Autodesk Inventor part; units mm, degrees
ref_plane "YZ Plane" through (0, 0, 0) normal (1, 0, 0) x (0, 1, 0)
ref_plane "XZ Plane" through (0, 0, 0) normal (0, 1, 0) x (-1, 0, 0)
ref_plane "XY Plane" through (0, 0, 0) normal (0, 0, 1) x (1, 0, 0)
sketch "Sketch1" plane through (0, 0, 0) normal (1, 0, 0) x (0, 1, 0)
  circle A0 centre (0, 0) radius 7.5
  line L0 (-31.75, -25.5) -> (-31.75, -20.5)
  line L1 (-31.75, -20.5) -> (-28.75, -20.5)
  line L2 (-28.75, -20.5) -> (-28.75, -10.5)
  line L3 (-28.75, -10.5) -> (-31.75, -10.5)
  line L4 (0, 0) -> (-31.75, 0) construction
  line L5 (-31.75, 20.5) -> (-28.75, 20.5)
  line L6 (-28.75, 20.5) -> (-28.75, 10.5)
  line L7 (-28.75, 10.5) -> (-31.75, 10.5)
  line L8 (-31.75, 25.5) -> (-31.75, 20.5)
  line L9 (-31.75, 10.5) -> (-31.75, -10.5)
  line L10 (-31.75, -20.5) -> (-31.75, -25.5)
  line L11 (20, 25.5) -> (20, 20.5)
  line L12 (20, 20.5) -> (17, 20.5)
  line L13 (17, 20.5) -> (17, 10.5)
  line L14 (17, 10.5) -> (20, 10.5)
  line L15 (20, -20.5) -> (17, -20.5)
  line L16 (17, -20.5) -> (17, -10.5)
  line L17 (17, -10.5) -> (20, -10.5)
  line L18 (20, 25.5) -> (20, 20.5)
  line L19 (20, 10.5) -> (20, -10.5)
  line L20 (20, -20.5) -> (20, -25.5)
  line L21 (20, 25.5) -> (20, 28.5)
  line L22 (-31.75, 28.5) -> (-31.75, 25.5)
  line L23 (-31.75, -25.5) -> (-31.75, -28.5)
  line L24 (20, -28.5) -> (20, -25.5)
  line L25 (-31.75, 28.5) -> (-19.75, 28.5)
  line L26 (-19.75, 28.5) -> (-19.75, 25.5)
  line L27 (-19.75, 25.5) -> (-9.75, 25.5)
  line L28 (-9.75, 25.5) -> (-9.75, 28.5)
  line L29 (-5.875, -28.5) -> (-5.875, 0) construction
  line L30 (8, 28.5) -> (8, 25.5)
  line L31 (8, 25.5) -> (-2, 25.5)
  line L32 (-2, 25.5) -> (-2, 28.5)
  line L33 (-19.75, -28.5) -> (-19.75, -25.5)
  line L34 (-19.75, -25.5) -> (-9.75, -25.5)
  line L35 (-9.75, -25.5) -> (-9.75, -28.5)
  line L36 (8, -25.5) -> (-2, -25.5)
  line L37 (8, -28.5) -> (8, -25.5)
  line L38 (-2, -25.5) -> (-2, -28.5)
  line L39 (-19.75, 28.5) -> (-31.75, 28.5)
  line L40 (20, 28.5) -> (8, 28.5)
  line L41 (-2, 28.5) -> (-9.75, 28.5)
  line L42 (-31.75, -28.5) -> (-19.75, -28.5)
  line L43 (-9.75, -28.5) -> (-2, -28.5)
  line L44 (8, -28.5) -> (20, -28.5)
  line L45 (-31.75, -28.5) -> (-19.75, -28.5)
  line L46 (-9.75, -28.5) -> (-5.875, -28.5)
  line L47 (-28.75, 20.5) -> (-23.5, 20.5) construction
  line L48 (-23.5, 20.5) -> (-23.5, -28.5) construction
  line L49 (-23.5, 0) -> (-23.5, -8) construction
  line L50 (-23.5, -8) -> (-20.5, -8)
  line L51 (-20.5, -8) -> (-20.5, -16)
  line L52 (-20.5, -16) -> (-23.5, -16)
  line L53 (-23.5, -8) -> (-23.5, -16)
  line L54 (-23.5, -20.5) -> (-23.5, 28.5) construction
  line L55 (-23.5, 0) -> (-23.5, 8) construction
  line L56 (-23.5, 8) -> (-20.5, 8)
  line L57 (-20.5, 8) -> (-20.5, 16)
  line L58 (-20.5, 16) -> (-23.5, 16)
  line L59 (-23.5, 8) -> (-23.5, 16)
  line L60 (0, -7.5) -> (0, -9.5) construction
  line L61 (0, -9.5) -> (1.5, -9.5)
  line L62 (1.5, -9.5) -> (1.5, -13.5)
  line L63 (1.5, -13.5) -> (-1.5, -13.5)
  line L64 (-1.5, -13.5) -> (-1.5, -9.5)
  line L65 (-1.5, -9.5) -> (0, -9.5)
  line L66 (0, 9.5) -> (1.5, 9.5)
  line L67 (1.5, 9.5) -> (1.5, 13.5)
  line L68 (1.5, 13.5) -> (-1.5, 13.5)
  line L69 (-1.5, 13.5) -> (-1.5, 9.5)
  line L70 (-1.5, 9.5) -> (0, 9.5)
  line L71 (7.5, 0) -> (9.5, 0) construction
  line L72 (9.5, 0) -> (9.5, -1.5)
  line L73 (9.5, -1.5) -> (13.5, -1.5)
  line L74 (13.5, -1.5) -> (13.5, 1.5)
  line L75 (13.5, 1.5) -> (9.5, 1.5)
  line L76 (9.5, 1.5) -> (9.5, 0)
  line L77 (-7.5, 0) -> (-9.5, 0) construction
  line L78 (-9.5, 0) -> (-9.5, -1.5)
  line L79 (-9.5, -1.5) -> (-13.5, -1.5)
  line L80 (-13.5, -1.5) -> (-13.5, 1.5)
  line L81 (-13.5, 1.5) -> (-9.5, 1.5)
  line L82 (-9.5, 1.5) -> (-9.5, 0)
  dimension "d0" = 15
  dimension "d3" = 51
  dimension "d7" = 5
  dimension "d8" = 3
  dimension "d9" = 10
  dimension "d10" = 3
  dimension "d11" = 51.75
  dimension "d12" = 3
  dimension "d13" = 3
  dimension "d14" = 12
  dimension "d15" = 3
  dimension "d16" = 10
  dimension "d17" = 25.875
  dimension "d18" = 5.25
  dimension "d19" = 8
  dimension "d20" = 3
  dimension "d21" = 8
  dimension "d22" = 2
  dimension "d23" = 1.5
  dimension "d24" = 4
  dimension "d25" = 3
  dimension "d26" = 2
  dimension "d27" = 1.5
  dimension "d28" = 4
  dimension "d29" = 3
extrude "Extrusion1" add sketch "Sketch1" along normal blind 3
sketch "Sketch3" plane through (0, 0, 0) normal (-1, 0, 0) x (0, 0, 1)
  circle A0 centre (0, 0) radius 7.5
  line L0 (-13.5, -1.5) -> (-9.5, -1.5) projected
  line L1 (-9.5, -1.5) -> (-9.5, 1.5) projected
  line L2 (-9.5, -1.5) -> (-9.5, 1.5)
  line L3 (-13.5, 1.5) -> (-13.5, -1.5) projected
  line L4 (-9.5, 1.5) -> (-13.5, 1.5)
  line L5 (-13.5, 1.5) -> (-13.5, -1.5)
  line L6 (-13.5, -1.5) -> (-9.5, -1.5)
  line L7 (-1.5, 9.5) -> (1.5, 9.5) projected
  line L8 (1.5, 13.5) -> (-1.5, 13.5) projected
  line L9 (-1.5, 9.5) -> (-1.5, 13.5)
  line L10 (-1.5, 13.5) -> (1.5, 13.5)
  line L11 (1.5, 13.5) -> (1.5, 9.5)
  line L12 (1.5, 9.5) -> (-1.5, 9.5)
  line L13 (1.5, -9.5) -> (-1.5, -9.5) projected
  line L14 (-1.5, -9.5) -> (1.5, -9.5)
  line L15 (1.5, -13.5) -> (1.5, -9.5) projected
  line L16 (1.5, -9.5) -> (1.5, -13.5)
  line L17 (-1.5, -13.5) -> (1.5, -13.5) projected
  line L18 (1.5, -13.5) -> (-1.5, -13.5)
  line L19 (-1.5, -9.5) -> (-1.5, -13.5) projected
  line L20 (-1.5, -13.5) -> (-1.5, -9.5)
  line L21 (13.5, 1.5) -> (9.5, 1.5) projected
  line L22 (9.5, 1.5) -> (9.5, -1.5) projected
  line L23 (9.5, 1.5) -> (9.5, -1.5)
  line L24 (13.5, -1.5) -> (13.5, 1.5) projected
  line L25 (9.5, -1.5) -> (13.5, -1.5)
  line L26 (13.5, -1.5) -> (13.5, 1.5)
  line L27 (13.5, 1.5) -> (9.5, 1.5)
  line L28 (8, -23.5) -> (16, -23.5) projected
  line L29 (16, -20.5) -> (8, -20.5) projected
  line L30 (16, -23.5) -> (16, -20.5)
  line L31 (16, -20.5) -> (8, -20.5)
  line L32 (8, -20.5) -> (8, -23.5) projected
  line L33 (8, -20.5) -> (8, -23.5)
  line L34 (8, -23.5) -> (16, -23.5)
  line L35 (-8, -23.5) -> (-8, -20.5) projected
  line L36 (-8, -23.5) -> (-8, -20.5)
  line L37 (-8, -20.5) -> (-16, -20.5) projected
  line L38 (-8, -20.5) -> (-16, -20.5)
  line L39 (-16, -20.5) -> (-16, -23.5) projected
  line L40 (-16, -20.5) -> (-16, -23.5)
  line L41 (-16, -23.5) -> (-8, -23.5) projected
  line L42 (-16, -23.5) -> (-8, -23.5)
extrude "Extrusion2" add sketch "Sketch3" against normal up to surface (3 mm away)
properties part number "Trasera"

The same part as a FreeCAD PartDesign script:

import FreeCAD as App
import Part
import Sketcher
Q = App.Units.Quantity

doc = App.newDocument("Part")
body = doc.addObject("PartDesign::Body", "Body")

# Sketch on YZ plane
sketch1 = body.newObject("Sketcher::SketchObject", "Sketch")
sketch1.AttachmentSupport = (doc.getObject("YZ_Plane"), [""])
sketch1.MapMode = "FlatFace"
sketch1.addGeometry(Part.LineSegment(App.Vector(-31.75, -20.5, 0), App.Vector(-31.75, -28.5, 0)), False)
sketch1.addGeometry(Part.LineSegment(App.Vector(-31.75, -28.5, 0), App.Vector(-19.75, -28.5, 0)), False)
sketch1.addGeometry(Part.LineSegment(App.Vector(-19.75, -28.5, 0), App.Vector(-19.75, -25.5, 0)), False)
sketch1.addGeometry(Part.LineSegment(App.Vector(-19.75, -25.5, 0), App.Vector(-9.75, -25.5, 0)), False)
sketch1.addGeometry(Part.LineSegment(App.Vector(-9.75, -25.5, 0), App.Vector(-9.75, -28.5, 0)), False)
sketch1.addGeometry(Part.LineSegment(App.Vector(-9.75, -28.5, 0), App.Vector(-2, -28.5, 0)), False)
sketch1.addGeometry(Part.LineSegment(App.Vector(-2, -28.5, 0), App.Vector(-2, -25.5, 0)), False)
sketch1.addGeometry(Part.LineSegment(App.Vector(-2, -25.5, 0), App.Vector(8, -25.5, 0)), False)
sketch1.addGeometry(Part.LineSegment(App.Vector(8, -25.5, 0), App.Vector(8, -28.5, 0)), False)
sketch1.addGeometry(Part.LineSegment(App.Vector(8, -28.5, 0), App.Vector(20, -28.5, 0)), False)
sketch1.addGeometry(Part.LineSegment(App.Vector(20, -28.5, 0), App.Vector(20, -20.5, 0)), False)
sketch1.addGeometry(Part.LineSegment(App.Vector(20, -20.5, 0), App.Vector(17, -20.5, 0)), False)
sketch1.addGeometry(Part.LineSegment(App.Vector(17, -20.5, 0), App.Vector(17, -10.5, 0)), False)
sketch1.addGeometry(Part.LineSegment(App.Vector(17, -10.5, 0), App.Vector(20, -10.5, 0)), False)
sketch1.addGeometry(Part.LineSegment(App.Vector(20, -10.5, 0), App.Vector(20, 10.5, 0)), False)
sketch1.addGeometry(Part.LineSegment(App.Vector(20, 10.5, 0), App.Vector(17, 10.5, 0)), False)
sketch1.addGeometry(Part.LineSegment(App.Vector(17, 10.5, 0), App.Vector(17, 20.5, 0)), False)
sketch1.addGeometry(Part.LineSegment(App.Vector(17, 20.5, 0), App.Vector(20, 20.5, 0)), False)
sketch1.addGeometry(Part.LineSegment(App.Vector(20, 20.5, 0), App.Vector(20, 28.5, 0)), False)
sketch1.addGeometry(Part.LineSegment(App.Vector(20, 28.5, 0), App.Vector(8, 28.5, 0)), False)
sketch1.addGeometry(Part.LineSegment(App.Vector(8, 28.5, 0), App.Vector(8, 25.5, 0)), False)
sketch1.addGeometry(Part.LineSegment(App.Vector(8, 25.5, 0), App.Vector(-2, 25.5, 0)), False)
sketch1.addGeometry(Part.LineSegment(App.Vector(-2, 25.5, 0), App.Vector(-2, 28.5, 0)), False)
sketch1.addGeometry(Part.LineSegment(App.Vector(-2, 28.5, 0), App.Vector(-9.75, 28.5, 0)), False)
sketch1.addGeometry(Part.LineSegment(App.Vector(-9.75, 28.5, 0), App.Vector(-9.75, 25.5, 0)), False)
sketch1.addGeometry(Part.LineSegment(App.Vector(-9.75, 25.5, 0), App.Vector(-19.75, 25.5, 0)), False)
sketch1.addGeometry(Part.LineSegment(App.Vector(-19.75, 25.5, 0), App.Vector(-19.75, 28.5, 0)), False)
sketch1.addGeometry(Part.LineSegment(App.Vector(-19.75, 28.5, 0), App.Vector(-31.75, 28.5, 0)), False)
sketch1.addGeometry(Part.LineSegment(App.Vector(-31.75, 28.5, 0), App.Vector(-31.75, 20.5, 0)), False)
sketch1.addGeometry(Part.LineSegment(App.Vector(-31.75, 20.5, 0), App.Vector(-28.75, 20.5, 0)), False)
sketch1.addGeometry(Part.LineSegment(App.Vector(-28.75, 20.5, 0), App.Vector(-28.75, 10.5, 0)), False)
sketch1.addGeometry(Part.LineSegment(App.Vector(-28.75, 10.5, 0), App.Vector(-31.75, 10.5, 0)), False)
sketch1.addGeometry(Part.LineSegment(App.Vector(-31.75, 10.5, 0), App.Vector(-31.75, -10.5, 0)), False)
sketch1.addGeometry(Part.LineSegment(App.Vector(-31.75, -10.5, 0), App.Vector(-28.75, -10.5, 0)), False)
sketch1.addGeometry(Part.LineSegment(App.Vector(-28.75, -10.5, 0), App.Vector(-28.75, -20.5, 0)), False)
sketch1.addGeometry(Part.LineSegment(App.Vector(-28.75, -20.5, 0), App.Vector(-31.75, -20.5, 0)), False)
sketch1.addGeometry(Part.LineSegment(App.Vector(-23.5, -16, 0), App.Vector(-23.5, -8, 0)), False)
sketch1.addGeometry(Part.LineSegment(App.Vector(-23.5, -8, 0), App.Vector(-20.5, -8, 0)), False)
sketch1.addGeometry(Part.LineSegment(App.Vector(-20.5, -8, 0), App.Vector(-20.5, -16, 0)), False)
sketch1.addGeometry(Part.LineSegment(App.Vector(-20.5, -16, 0), App.Vector(-23.5, -16, 0)), False)
sketch1.addGeometry(Part.LineSegment(App.Vector(-1.5, -9.5, 0), App.Vector(1.5, -9.5, 0)), False)
sketch1.addGeometry(Part.LineSegment(App.Vector(1.5, -9.5, 0), App.Vector(1.5, -13.5, 0)), False)
sketch1.addGeometry(Part.LineSegment(App.Vector(1.5, -13.5, 0), App.Vector(-1.5, -13.5, 0)), False)
sketch1.addGeometry(Part.LineSegment(App.Vector(-1.5, -13.5, 0), App.Vector(-1.5, -9.5, 0)), False)
sketch1.addGeometry(Part.LineSegment(App.Vector(-20.5, 8, 0), App.Vector(-23.5, 8, 0)), False)
sketch1.addGeometry(Part.LineSegment(App.Vector(-23.5, 8, 0), App.Vector(-23.5, 16, 0)), False)
sketch1.addGeometry(Part.LineSegment(App.Vector(-23.5, 16, 0), App.Vector(-20.5, 16, 0)), False)
sketch1.addGeometry(Part.LineSegment(App.Vector(-20.5, 16, 0), App.Vector(-20.5, 8, 0)), False)
sketch1.addGeometry(Part.LineSegment(App.Vector(-9.5, 1.5, 0), App.Vector(-9.5, -1.5, 0)), False)
sketch1.addGeometry(Part.LineSegment(App.Vector(-9.5, -1.5, 0), App.Vector(-13.5, -1.5, 0)), False)
sketch1.addGeometry(Part.LineSegment(App.Vector(-13.5, -1.5, 0), App.Vector(-13.5, 1.5, 0)), False)
sketch1.addGeometry(Part.LineSegment(App.Vector(-13.5, 1.5, 0), App.Vector(-9.5, 1.5, 0)), False)
sketch1.addGeometry(Part.Circle(App.Vector(0, 0, 0), App.Vector(0, 0, 1), 7.5), False)
sketch1.addGeometry(Part.LineSegment(App.Vector(1.5, 9.5, 0), App.Vector(-1.5, 9.5, 0)), False)
sketch1.addGeometry(Part.LineSegment(App.Vector(-1.5, 9.5, 0), App.Vector(-1.5, 13.5, 0)), False)
sketch1.addGeometry(Part.LineSegment(App.Vector(-1.5, 13.5, 0), App.Vector(1.5, 13.5, 0)), False)
sketch1.addGeometry(Part.LineSegment(App.Vector(1.5, 13.5, 0), App.Vector(1.5, 9.5, 0)), False)
sketch1.addGeometry(Part.LineSegment(App.Vector(9.5, -1.5, 0), App.Vector(9.5, 1.5, 0)), False)
sketch1.addGeometry(Part.LineSegment(App.Vector(9.5, 1.5, 0), App.Vector(13.5, 1.5, 0)), False)
sketch1.addGeometry(Part.LineSegment(App.Vector(13.5, 1.5, 0), App.Vector(13.5, -1.5, 0)), False)
sketch1.addGeometry(Part.LineSegment(App.Vector(13.5, -1.5, 0), App.Vector(9.5, -1.5, 0)), False)
sketch1.addConstraint(Sketcher.Constraint("Coincident", 0, 2, 1, 1))
sketch1.addConstraint(Sketcher.Constraint("Coincident", 1, 2, 2, 1))
sketch1.addConstraint(Sketcher.Constraint("Coincident", 2, 2, 3, 1))
sketch1.addConstraint(Sketcher.Constraint("Coincident", 3, 2, 4, 1))
sketch1.addConstraint(Sketcher.Constraint("Coincident", 4, 2, 5, 1))
sketch1.addConstraint(Sketcher.Constraint("Coincident", 5, 2, 6, 1))
sketch1.addConstraint(Sketcher.Constraint("Coincident", 6, 2, 7, 1))
sketch1.addConstraint(Sketcher.Constraint("Coincident", 7, 2, 8, 1))
sketch1.addConstraint(Sketcher.Constraint("Coincident", 8, 2, 9, 1))
sketch1.addConstraint(Sketcher.Constraint("Coincident", 9, 2, 10, 1))
sketch1.addConstraint(Sketcher.Constraint("Coincident", 10, 2, 11, 1))
sketch1.addConstraint(Sketcher.Constraint("Coincident", 11, 2, 12, 1))
sketch1.addConstraint(Sketcher.Constraint("Coincident", 12, 2, 13, 1))
sketch1.addConstraint(Sketcher.Constraint("Coincident", 13, 2, 14, 1))
sketch1.addConstraint(Sketcher.Constraint("Coincident", 14, 2, 15, 1))
sketch1.addConstraint(Sketcher.Constraint("Coincident", 15, 2, 16, 1))
sketch1.addConstraint(Sketcher.Constraint("Coincident", 16, 2, 17, 1))
sketch1.addConstraint(Sketcher.Constraint("Coincident", 17, 2, 18, 1))
sketch1.addConstraint(Sketcher.Constraint("Coincident", 18, 2, 19, 1))
sketch1.addConstraint(Sketcher.Constraint("Coincident", 19, 2, 20, 1))
sketch1.addConstraint(Sketcher.Constraint("Coincident", 20, 2, 21, 1))
sketch1.addConstraint(Sketcher.Constraint("Coincident", 21, 2, 22, 1))
sketch1.addConstraint(Sketcher.Constraint("Coincident", 22, 2, 23, 1))
sketch1.addConstraint(Sketcher.Constraint("Coincident", 23, 2, 24, 1))
sketch1.addConstraint(Sketcher.Constraint("Coincident", 24, 2, 25, 1))
sketch1.addConstraint(Sketcher.Constraint("Coincident", 25, 2, 26, 1))
sketch1.addConstraint(Sketcher.Constraint("Coincident", 26, 2, 27, 1))
sketch1.addConstraint(Sketcher.Constraint("Coincident", 27, 2, 28, 1))
sketch1.addConstraint(Sketcher.Constraint("Coincident", 28, 2, 29, 1))
sketch1.addConstraint(Sketcher.Constraint("Coincident", 29, 2, 30, 1))
sketch1.addConstraint(Sketcher.Constraint("Coincident", 30, 2, 31, 1))
sketch1.addConstraint(Sketcher.Constraint("Coincident", 31, 2, 32, 1))
sketch1.addConstraint(Sketcher.Constraint("Coincident", 32, 2, 33, 1))
sketch1.addConstraint(Sketcher.Constraint("Coincident", 33, 2, 34, 1))
sketch1.addConstraint(Sketcher.Constraint("Coincident", 34, 2, 35, 1))
sketch1.addConstraint(Sketcher.Constraint("Coincident", 35, 2, 0, 1))
sketch1.addConstraint(Sketcher.Constraint("Coincident", 36, 2, 37, 1))
sketch1.addConstraint(Sketcher.Constraint("Coincident", 37, 2, 38, 1))
sketch1.addConstraint(Sketcher.Constraint("Coincident", 38, 2, 39, 1))
sketch1.addConstraint(Sketcher.Constraint("Coincident", 39, 2, 36, 1))
sketch1.addConstraint(Sketcher.Constraint("Coincident", 40, 2, 41, 1))
sketch1.addConstraint(Sketcher.Constraint("Coincident", 41, 2, 42, 1))
sketch1.addConstraint(Sketcher.Constraint("Coincident", 42, 2, 43, 1))
sketch1.addConstraint(Sketcher.Constraint("Coincident", 43, 2, 40, 1))
sketch1.addConstraint(Sketcher.Constraint("Coincident", 44, 2, 45, 1))
sketch1.addConstraint(Sketcher.Constraint("Coincident", 45, 2, 46, 1))
sketch1.addConstraint(Sketcher.Constraint("Coincident", 46, 2, 47, 1))
sketch1.addConstraint(Sketcher.Constraint("Coincident", 47, 2, 44, 1))
sketch1.addConstraint(Sketcher.Constraint("Coincident", 48, 2, 49, 1))
sketch1.addConstraint(Sketcher.Constraint("Coincident", 49, 2, 50, 1))
sketch1.addConstraint(Sketcher.Constraint("Coincident", 50, 2, 51, 1))
sketch1.addConstraint(Sketcher.Constraint("Coincident", 51, 2, 48, 1))
sketch1.addConstraint(Sketcher.Constraint("Coincident", 53, 2, 54, 1))
sketch1.addConstraint(Sketcher.Constraint("Coincident", 54, 2, 55, 1))
sketch1.addConstraint(Sketcher.Constraint("Coincident", 55, 2, 56, 1))
sketch1.addConstraint(Sketcher.Constraint("Coincident", 56, 2, 53, 1))
sketch1.addConstraint(Sketcher.Constraint("Coincident", 57, 2, 58, 1))
sketch1.addConstraint(Sketcher.Constraint("Coincident", 58, 2, 59, 1))
sketch1.addConstraint(Sketcher.Constraint("Coincident", 59, 2, 60, 1))
sketch1.addConstraint(Sketcher.Constraint("Coincident", 60, 2, 57, 1))
sketch1.addConstraint(Sketcher.Constraint("Vertical", 0))
sketch1.addConstraint(Sketcher.Constraint("Horizontal", 1))
sketch1.addConstraint(Sketcher.Constraint("Vertical", 2))
sketch1.addConstraint(Sketcher.Constraint("Horizontal", 3))
sketch1.addConstraint(Sketcher.Constraint("Vertical", 4))
sketch1.addConstraint(Sketcher.Constraint("Horizontal", 5))
sketch1.addConstraint(Sketcher.Constraint("Vertical", 6))
sketch1.addConstraint(Sketcher.Constraint("Horizontal", 7))
sketch1.addConstraint(Sketcher.Constraint("Vertical", 8))
sketch1.addConstraint(Sketcher.Constraint("Horizontal", 9))
sketch1.addConstraint(Sketcher.Constraint("Vertical", 10))
sketch1.addConstraint(Sketcher.Constraint("Horizontal", 11))
sketch1.addConstraint(Sketcher.Constraint("Vertical", 12))
sketch1.addConstraint(Sketcher.Constraint("Horizontal", 13))
sketch1.addConstraint(Sketcher.Constraint("Vertical", 14))
sketch1.addConstraint(Sketcher.Constraint("Horizontal", 15))
sketch1.addConstraint(Sketcher.Constraint("Vertical", 16))
sketch1.addConstraint(Sketcher.Constraint("Horizontal", 17))
sketch1.addConstraint(Sketcher.Constraint("Vertical", 18))
sketch1.addConstraint(Sketcher.Constraint("Horizontal", 19))
sketch1.addConstraint(Sketcher.Constraint("Vertical", 20))
sketch1.addConstraint(Sketcher.Constraint("Horizontal", 21))
sketch1.addConstraint(Sketcher.Constraint("Vertical", 22))
sketch1.addConstraint(Sketcher.Constraint("Horizontal", 23))
sketch1.addConstraint(Sketcher.Constraint("Vertical", 24))
sketch1.addConstraint(Sketcher.Constraint("Horizontal", 25))
sketch1.addConstraint(Sketcher.Constraint("Vertical", 26))
sketch1.addConstraint(Sketcher.Constraint("Horizontal", 27))
sketch1.addConstraint(Sketcher.Constraint("Vertical", 28))
sketch1.addConstraint(Sketcher.Constraint("Horizontal", 29))
sketch1.addConstraint(Sketcher.Constraint("Vertical", 30))
sketch1.addConstraint(Sketcher.Constraint("Horizontal", 31))
sketch1.addConstraint(Sketcher.Constraint("Vertical", 32))
sketch1.addConstraint(Sketcher.Constraint("Horizontal", 33))
sketch1.addConstraint(Sketcher.Constraint("Vertical", 34))
sketch1.addConstraint(Sketcher.Constraint("Horizontal", 35))
sketch1.addConstraint(Sketcher.Constraint("Vertical", 36))
sketch1.addConstraint(Sketcher.Constraint("Horizontal", 37))
sketch1.addConstraint(Sketcher.Constraint("Vertical", 38))
sketch1.addConstraint(Sketcher.Constraint("Horizontal", 39))
sketch1.addConstraint(Sketcher.Constraint("Horizontal", 40))
sketch1.addConstraint(Sketcher.Constraint("Vertical", 41))
sketch1.addConstraint(Sketcher.Constraint("Horizontal", 42))
sketch1.addConstraint(Sketcher.Constraint("Vertical", 43))
sketch1.addConstraint(Sketcher.Constraint("Horizontal", 44))
sketch1.addConstraint(Sketcher.Constraint("Vertical", 45))
sketch1.addConstraint(Sketcher.Constraint("Horizontal", 46))
sketch1.addConstraint(Sketcher.Constraint("Vertical", 47))
sketch1.addConstraint(Sketcher.Constraint("Vertical", 48))
sketch1.addConstraint(Sketcher.Constraint("Horizontal", 49))
sketch1.addConstraint(Sketcher.Constraint("Vertical", 50))
sketch1.addConstraint(Sketcher.Constraint("Horizontal", 51))
sketch1.addConstraint(Sketcher.Constraint("Horizontal", 53))
sketch1.addConstraint(Sketcher.Constraint("Vertical", 54))
sketch1.addConstraint(Sketcher.Constraint("Horizontal", 55))
sketch1.addConstraint(Sketcher.Constraint("Vertical", 56))
sketch1.addConstraint(Sketcher.Constraint("Vertical", 57))
sketch1.addConstraint(Sketcher.Constraint("Horizontal", 58))
sketch1.addConstraint(Sketcher.Constraint("Vertical", 59))
sketch1.addConstraint(Sketcher.Constraint("Horizontal", 60))
sketch1.addConstraint(Sketcher.Constraint("Coincident", 52, 3, -1, 1))
sketch1.addConstraint(Sketcher.Constraint("Symmetric", 40, 2, 53, 2, -1, 1))
sketch1.addConstraint(Sketcher.Constraint("Symmetric", 42, 2, 55, 2, -1, 1))
sketch1.addConstraint(Sketcher.Constraint("Symmetric", 48, 2, 57, 2, -1, 1))
sketch1.addConstraint(Sketcher.Constraint("Symmetric", 50, 2, 59, 2, -1, 1))
sketch1.addConstraint(Sketcher.Constraint("Symmetric", 12, 2, 15, 2, -1))
sketch1.addConstraint(Sketcher.Constraint("Symmetric", 10, 2, 17, 2, -1))
sketch1.addConstraint(Sketcher.Constraint("Symmetric", 8, 2, 19, 2, -1))
sketch1.addConstraint(Sketcher.Constraint("Symmetric", 6, 2, 21, 2, -1))
sketch1.addConstraint(Sketcher.Constraint("Symmetric", 4, 2, 23, 2, -1))
sketch1.addConstraint(Sketcher.Constraint("Symmetric", 2, 2, 25, 2, -1))
sketch1.addConstraint(Sketcher.Constraint("Symmetric", 0, 2, 27, 2, -1))
sketch1.addConstraint(Sketcher.Constraint("Symmetric", 30, 2, 33, 2, -1))
sketch1.addConstraint(Sketcher.Constraint("Symmetric", 36, 2, 44, 2, -1))
sketch1.addConstraint(Sketcher.Constraint("Symmetric", 38, 2, 46, 2, -1))
sketch1.addConstraint(Sketcher.Constraint("Horizontal", 1, 2, 4, 2))
sketch1.addConstraint(Sketcher.Constraint("Horizontal", 3, 2, 6, 2))
sketch1.addConstraint(Sketcher.Constraint("Horizontal", 5, 2, 8, 2))
sketch1.addConstraint(Sketcher.Constraint("Horizontal", 17, 2, 28, 2))
sketch1.addConstraint(Sketcher.Constraint("Horizontal", 15, 2, 30, 2))
sketch1.addConstraint(Sketcher.Constraint("Horizontal", 11, 2, 34, 2))
sketch1.addConstraint(Sketcher.Constraint("Horizontal", 51, 2, 57, 2))
sketch1.addConstraint(Sketcher.Constraint("Vertical", 10, 2, 13, 2))
sketch1.addConstraint(Sketcher.Constraint("Vertical", 28, 2, 31, 2))
sketch1.addConstraint(Sketcher.Constraint("Vertical", 43, 2, 53, 2))
sketch1.addConstraint(Sketcher.Constraint("Equal", 3, 7))
sketch1.addConstraint(Sketcher.Constraint("Equal", 1, 9))
sketch1.addConstraint(Sketcher.Constraint("Equal", 17, 29))
sketch1.addConstraint(Sketcher.Constraint("Equal", 35, 37))
sketch1.addConstraint(Sketcher.Constraint("Equal", 39, 40))
sketch1.addConstraint(Sketcher.Constraint("Equal", 55, 2))
sketch1.addConstraint(Sketcher.Constraint("Equal", 25, 12))
sketch1.addConstraint(Sketcher.Constraint("Equal", 28, 36))
sketch1.addConstraint(Sketcher.Constraint("Equal", 60, 41))
sketch1.addConstraint(Sketcher.Constraint("Equal", 26, 48))
sketch1.addConstraint(Sketcher.Constraint("Diameter", 52, Q("15 mm")))
sketch1.addConstraint(Sketcher.Constraint("DistanceX", 1, 1, 1, 2, Q("12 mm")))
sketch1.addConstraint(Sketcher.Constraint("DistanceX", 3, 1, 3, 2, Q("10 mm")))
sketch1.addConstraint(Sketcher.Constraint("DistanceX", 11, 2, 11, 1, Q("3 mm")))
sketch1.addConstraint(Sketcher.Constraint("DistanceX", 49, 2, 49, 1, Q("4 mm")))
sketch1.addConstraint(Sketcher.Constraint("DistanceY", 0, 2, 0, 1, Q("8 mm")))
sketch1.addConstraint(Sketcher.Constraint("DistanceX", 5, 2, -1, 1, Q("2 mm")))
sketch1.addConstraint(Sketcher.Constraint("DistanceY", 36, 2, -1, 1, Q("8 mm")))
sketch1.addConstraint(Sketcher.Constraint("DistanceY", 14, 1, 14, 2, Q("21 mm")))
sketch1.addConstraint(Sketcher.Constraint("DistanceX", 5, 1, 5, 2, Q("7.75 mm")))
sketch1.addConstraint(Sketcher.Constraint("DistanceX", 36, 2, -1, 1, Q("23.5 mm")))
sketch1.addConstraint(Sketcher.Constraint("DistanceY", 40, 2, -1, 1, Q("9.5 mm")))
sketch1.addConstraint(Sketcher.Constraint("DistanceX", 48, 2, -1, 1, Q("9.5 mm")))
pad1 = body.newObject("PartDesign::Pad", "Pad")
pad1.Profile = sketch1
pad1.Length = 3

# Sketch on YZ plane
sketch2 = body.newObject("Sketcher::SketchObject", "Sketch001")
sketch2.AttachmentSupport = (doc.getObject("YZ_Plane"), [""])
sketch2.MapMode = "FlatFace"
sketch2.addGeometry(Part.Circle(App.Vector(0, 0, 0), App.Vector(0, 0, 1), 7.5), False)
sketch2.addGeometry(Part.LineSegment(App.Vector(1.5, -13.5, 0), App.Vector(-1.5, -13.5, 0)), False)
sketch2.addGeometry(Part.LineSegment(App.Vector(-1.5, -13.5, 0), App.Vector(-1.5, -9.5, 0)), False)
sketch2.addGeometry(Part.LineSegment(App.Vector(-1.5, -9.5, 0), App.Vector(1.5, -9.5, 0)), False)
sketch2.addGeometry(Part.LineSegment(App.Vector(1.5, -9.5, 0), App.Vector(1.5, -13.5, 0)), False)
sketch2.addGeometry(Part.LineSegment(App.Vector(13.5, -1.5, 0), App.Vector(9.5, -1.5, 0)), False)
sketch2.addGeometry(Part.LineSegment(App.Vector(9.5, -1.5, 0), App.Vector(9.5, 1.5, 0)), False)
sketch2.addGeometry(Part.LineSegment(App.Vector(9.5, 1.5, 0), App.Vector(13.5, 1.5, 0)), False)
sketch2.addGeometry(Part.LineSegment(App.Vector(13.5, 1.5, 0), App.Vector(13.5, -1.5, 0)), False)
sketch2.addGeometry(Part.LineSegment(App.Vector(-13.5, 1.5, 0), App.Vector(-9.5, 1.5, 0)), False)
sketch2.addGeometry(Part.LineSegment(App.Vector(-9.5, 1.5, 0), App.Vector(-9.5, -1.5, 0)), False)
sketch2.addGeometry(Part.LineSegment(App.Vector(-9.5, -1.5, 0), App.Vector(-13.5, -1.5, 0)), False)
sketch2.addGeometry(Part.LineSegment(App.Vector(-13.5, -1.5, 0), App.Vector(-13.5, 1.5, 0)), False)
sketch2.addGeometry(Part.LineSegment(App.Vector(-1.5, 13.5, 0), App.Vector(1.5, 13.5, 0)), False)
sketch2.addGeometry(Part.LineSegment(App.Vector(1.5, 13.5, 0), App.Vector(1.5, 9.5, 0)), False)
sketch2.addGeometry(Part.LineSegment(App.Vector(1.5, 9.5, 0), App.Vector(-1.5, 9.5, 0)), False)
sketch2.addGeometry(Part.LineSegment(App.Vector(-1.5, 9.5, 0), App.Vector(-1.5, 13.5, 0)), False)
sketch2.addGeometry(Part.LineSegment(App.Vector(-20.5, 8, 0), App.Vector(-23.5, 8, 0)), False)
sketch2.addGeometry(Part.LineSegment(App.Vector(-23.5, 8, 0), App.Vector(-23.5, 16, 0)), False)
sketch2.addGeometry(Part.LineSegment(App.Vector(-23.5, 16, 0), App.Vector(-20.5, 16, 0)), False)
sketch2.addGeometry(Part.LineSegment(App.Vector(-20.5, 16, 0), App.Vector(-20.5, 8, 0)), False)
sketch2.addGeometry(Part.LineSegment(App.Vector(-23.5, -16, 0), App.Vector(-23.5, -8, 0)), False)
sketch2.addGeometry(Part.LineSegment(App.Vector(-23.5, -8, 0), App.Vector(-20.5, -8, 0)), False)
sketch2.addGeometry(Part.LineSegment(App.Vector(-20.5, -8, 0), App.Vector(-20.5, -16, 0)), False)
sketch2.addGeometry(Part.LineSegment(App.Vector(-20.5, -16, 0), App.Vector(-23.5, -16, 0)), False)
sketch2.addConstraint(Sketcher.Constraint("Coincident", 1, 2, 2, 1))
sketch2.addConstraint(Sketcher.Constraint("Coincident", 2, 2, 3, 1))
sketch2.addConstraint(Sketcher.Constraint("Coincident", 3, 2, 4, 1))
sketch2.addConstraint(Sketcher.Constraint("Coincident", 4, 2, 1, 1))
sketch2.addConstraint(Sketcher.Constraint("Coincident", 5, 2, 6, 1))
sketch2.addConstraint(Sketcher.Constraint("Coincident", 6, 2, 7, 1))
sketch2.addConstraint(Sketcher.Constraint("Coincident", 7, 2, 8, 1))
sketch2.addConstraint(Sketcher.Constraint("Coincident", 8, 2, 5, 1))
sketch2.addConstraint(Sketcher.Constraint("Coincident", 9, 2, 10, 1))
sketch2.addConstraint(Sketcher.Constraint("Coincident", 10, 2, 11, 1))
sketch2.addConstraint(Sketcher.Constraint("Coincident", 11, 2, 12, 1))
sketch2.addConstraint(Sketcher.Constraint("Coincident", 12, 2, 9, 1))
sketch2.addConstraint(Sketcher.Constraint("Coincident", 13, 2, 14, 1))
sketch2.addConstraint(Sketcher.Constraint("Coincident", 14, 2, 15, 1))
sketch2.addConstraint(Sketcher.Constraint("Coincident", 15, 2, 16, 1))
sketch2.addConstraint(Sketcher.Constraint("Coincident", 16, 2, 13, 1))
sketch2.addConstraint(Sketcher.Constraint("Coincident", 17, 2, 18, 1))
sketch2.addConstraint(Sketcher.Constraint("Coincident", 18, 2, 19, 1))
sketch2.addConstraint(Sketcher.Constraint("Coincident", 19, 2, 20, 1))
sketch2.addConstraint(Sketcher.Constraint("Coincident", 20, 2, 17, 1))
sketch2.addConstraint(Sketcher.Constraint("Coincident", 21, 2, 22, 1))
sketch2.addConstraint(Sketcher.Constraint("Coincident", 22, 2, 23, 1))
sketch2.addConstraint(Sketcher.Constraint("Coincident", 23, 2, 24, 1))
sketch2.addConstraint(Sketcher.Constraint("Coincident", 24, 2, 21, 1))
sketch2.addConstraint(Sketcher.Constraint("Horizontal", 1))
sketch2.addConstraint(Sketcher.Constraint("Vertical", 2))
sketch2.addConstraint(Sketcher.Constraint("Horizontal", 3))
sketch2.addConstraint(Sketcher.Constraint("Vertical", 4))
sketch2.addConstraint(Sketcher.Constraint("Horizontal", 5))
sketch2.addConstraint(Sketcher.Constraint("Vertical", 6))
sketch2.addConstraint(Sketcher.Constraint("Horizontal", 7))
sketch2.addConstraint(Sketcher.Constraint("Vertical", 8))
sketch2.addConstraint(Sketcher.Constraint("Horizontal", 9))
sketch2.addConstraint(Sketcher.Constraint("Vertical", 10))
sketch2.addConstraint(Sketcher.Constraint("Horizontal", 11))
sketch2.addConstraint(Sketcher.Constraint("Vertical", 12))
sketch2.addConstraint(Sketcher.Constraint("Horizontal", 13))
sketch2.addConstraint(Sketcher.Constraint("Vertical", 14))
sketch2.addConstraint(Sketcher.Constraint("Horizontal", 15))
sketch2.addConstraint(Sketcher.Constraint("Vertical", 16))
sketch2.addConstraint(Sketcher.Constraint("Horizontal", 17))
sketch2.addConstraint(Sketcher.Constraint("Vertical", 18))
sketch2.addConstraint(Sketcher.Constraint("Horizontal", 19))
sketch2.addConstraint(Sketcher.Constraint("Vertical", 20))
sketch2.addConstraint(Sketcher.Constraint("Vertical", 21))
sketch2.addConstraint(Sketcher.Constraint("Horizontal", 22))
sketch2.addConstraint(Sketcher.Constraint("Vertical", 23))
sketch2.addConstraint(Sketcher.Constraint("Horizontal", 24))
sketch2.addConstraint(Sketcher.Constraint("Coincident", 0, 3, -1, 1))
sketch2.addConstraint(Sketcher.Constraint("Symmetric", 5, 2, 9, 2, -1, 1))
sketch2.addConstraint(Sketcher.Constraint("Symmetric", 7, 2, 11, 2, -1, 1))
sketch2.addConstraint(Sketcher.Constraint("Symmetric", 1, 2, 13, 2, -1, 1))
sketch2.addConstraint(Sketcher.Constraint("Symmetric", 3, 2, 15, 2, -1, 1))
sketch2.addConstraint(Sketcher.Constraint("Symmetric", 17, 2, 21, 2, -1))
sketch2.addConstraint(Sketcher.Constraint("Symmetric", 19, 2, 23, 2, -1))
sketch2.addConstraint(Sketcher.Constraint("Horizontal", 7, 2, 9, 2))
sketch2.addConstraint(Sketcher.Constraint("Vertical", 4, 2, 13, 2))
sketch2.addConstraint(Sketcher.Constraint("Equal", 15, 17))
sketch2.addConstraint(Sketcher.Constraint("Equal", 11, 2))
sketch2.addConstraint(Sketcher.Constraint("Equal", 24, 6))
sketch2.addConstraint(Sketcher.Constraint("Diameter", 0, Q("15 mm")))
sketch2.addConstraint(Sketcher.Constraint("DistanceX", 1, 2, 1, 1, Q("3 mm")))
sketch2.addConstraint(Sketcher.Constraint("DistanceX", 5, 2, 5, 1, Q("4 mm")))
sketch2.addConstraint(Sketcher.Constraint("DistanceY", 18, 1, 18, 2, Q("8 mm")))
sketch2.addConstraint(Sketcher.Constraint("DistanceY", -1, 1, 17, 2, Q("8 mm")))
sketch2.addConstraint(Sketcher.Constraint("DistanceX", 3, 2, 5, 2, Q("8 mm")))
sketch2.addConstraint(Sketcher.Constraint("DistanceY", 3, 2, 5, 2, Q("8 mm")))
sketch2.addConstraint(Sketcher.Constraint("DistanceX", 17, 2, 12, 2, Q("10 mm")))
pad2 = body.newObject("PartDesign::Pad", "Pad001")
pad2.Profile = sketch2
pad2.Length = 3

doc.recompute()
